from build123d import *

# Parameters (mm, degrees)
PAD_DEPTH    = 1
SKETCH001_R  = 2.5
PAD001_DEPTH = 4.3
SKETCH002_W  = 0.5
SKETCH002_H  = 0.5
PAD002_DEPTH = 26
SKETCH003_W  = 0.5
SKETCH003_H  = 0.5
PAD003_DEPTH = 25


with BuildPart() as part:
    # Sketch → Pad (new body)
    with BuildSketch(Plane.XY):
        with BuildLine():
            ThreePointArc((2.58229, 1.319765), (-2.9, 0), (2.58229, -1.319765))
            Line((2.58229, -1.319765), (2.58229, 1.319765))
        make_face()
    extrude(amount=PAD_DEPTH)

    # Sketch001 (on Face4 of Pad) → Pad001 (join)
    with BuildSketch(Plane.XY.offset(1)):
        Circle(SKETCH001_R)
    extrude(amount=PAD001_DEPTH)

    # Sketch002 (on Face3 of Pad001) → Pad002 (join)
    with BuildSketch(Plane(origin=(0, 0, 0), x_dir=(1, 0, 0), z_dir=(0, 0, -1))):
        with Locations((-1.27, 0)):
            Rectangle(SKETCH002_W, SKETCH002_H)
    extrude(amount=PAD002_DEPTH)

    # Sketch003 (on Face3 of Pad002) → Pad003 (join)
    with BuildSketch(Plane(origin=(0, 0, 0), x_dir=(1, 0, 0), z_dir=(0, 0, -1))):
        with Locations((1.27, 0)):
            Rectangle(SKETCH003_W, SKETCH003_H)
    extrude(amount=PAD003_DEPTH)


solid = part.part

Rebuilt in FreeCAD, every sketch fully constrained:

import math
import FreeCAD as App
import Part
import Sketcher
from FreeCAD import Vector
Q = App.Units.Quantity

doc = App.newDocument("Part")
params = doc.addObject("Spreadsheet::Sheet", "Params")
for row, (alias, value) in enumerate([
    ("sketch1_radius", "2.9 mm"),
    ("pad1_length", "1 mm"),
    ("sketch2_diameter", "5 mm"),
    ("pad2_length", "4.3 mm"),
    ("sketch3_width", "0.5 mm"),
    ("pad3_length", "26 mm"),
    ("sketch4_width", "0.5 mm"),
    ("pad4_length", "25 mm"),
], start=1):
    params.set(f"A{row}", alias)
    params.set(f"B{row}", "=" + value)
    params.setAlias(f"B{row}", alias)

body = doc.addObject("PartDesign::Body", "Body")

# Sketch on XY plane
sketch1 = body.newObject("Sketcher::SketchObject", "Sketch")
sketch1.AttachmentSupport = (doc.getObject("XY_Plane"), [""])
sketch1.MapMode = "FlatFace"
sketch1.addGeometry(Part.ArcOfCircle(Part.Circle(Vector(0, 0, 0), Vector(0, 0, 1), 2.9), math.radians(27.070813), math.radians(332.929187)), False)
sketch1.addGeometry(Part.LineSegment(Vector(2.58229, -1.319765, 0), Vector(2.58229, 1.319765, 0)), False)
sketch1.addConstraint(Sketcher.Constraint("Coincident", 0, 1, 1, 2))
sketch1.addConstraint(Sketcher.Constraint("Coincident", 1, 1, 0, 2))
sketch1.addConstraint(Sketcher.Constraint("Vertical", 1))
sketch1.addConstraint(Sketcher.Constraint("Coincident", 0, 3, -1, 1))
sketch1.addConstraint(Sketcher.Constraint("Radius", 0, Q("2.9 mm")))
sketch1.addConstraint(Sketcher.Constraint("DistanceY", 1, 1, 1, 2, Q("2.63953 mm")))
sketch1.setExpression("Constraints[4]", "Params.sketch1_radius")
pad1 = body.newObject("PartDesign::Pad", "Pad")
pad1.Profile = sketch1
pad1.setExpression("Length", "Params.pad1_length")

# Sketch on XY plane
sketch2 = body.newObject("Sketcher::SketchObject", "Sketch001")
sketch2.AttachmentSupport = (doc.getObject("XY_Plane"), [""])
sketch2.MapMode = "FlatFace"
sketch2.AttachmentOffset = App.Placement(Vector(0, 0, 1), App.Rotation())
sketch2.addGeometry(Part.Circle(Vector(0, 0, 0), Vector(0, 0, 1), 2.5), False)
sketch2.addConstraint(Sketcher.Constraint("Coincident", 0, 3, -1, 1))
sketch2.addConstraint(Sketcher.Constraint("Diameter", 0, Q("5 mm")))
sketch2.setExpression("Constraints[1]", "Params.sketch2_diameter")
pad2 = body.newObject("PartDesign::Pad", "Pad001")
pad2.Profile = sketch2
pad2.setExpression("Length", "Params.pad2_length")

# Sketch on XY plane
sketch3 = body.newObject("Sketcher::SketchObject", "Sketch002")
sketch3.AttachmentSupport = (doc.getObject("XY_Plane"), [""])
sketch3.MapMode = "FlatFace"
sketch3.addGeometry(Part.LineSegment(Vector(-1.52, -0.25, 0), Vector(-1.52, 0.25, 0)), False)
sketch3.addGeometry(Part.LineSegment(Vector(-1.52, 0.25, 0), Vector(-1.02, 0.25, 0)), False)
sketch3.addGeometry(Part.LineSegment(Vector(-1.02, 0.25, 0), Vector(-1.02, -0.25, 0)), False)
sketch3.addGeometry(Part.LineSegment(Vector(-1.02, -0.25, 0), Vector(-1.52, -0.25, 0)), False)
sketch3.addConstraint(Sketcher.Constraint("Coincident", 0, 2, 1, 1))
sketch3.addConstraint(Sketcher.Constraint("Coincident", 1, 2, 2, 1))
sketch3.addConstraint(Sketcher.Constraint("Coincident", 2, 2, 3, 1))
sketch3.addConstraint(Sketcher.Constraint("Coincident", 3, 2, 0, 1))
sketch3.addConstraint(Sketcher.Constraint("Vertical", 0))
sketch3.addConstraint(Sketcher.Constraint("Horizontal", 1))
sketch3.addConstraint(Sketcher.Constraint("Vertical", 2))
sketch3.addConstraint(Sketcher.Constraint("Horizontal", 3))
sketch3.addConstraint(Sketcher.Constraint("Equal", 3, 0))
sketch3.addConstraint(Sketcher.Constraint("DistanceX", 1, 1, 1, 2, Q("0.5 mm")))
sketch3.addConstraint(Sketcher.Constraint("DistanceX", 0, 2, -1, 1, Q("1.52 mm")))
sketch3.addConstraint(Sketcher.Constraint("DistanceY", -1, 1, 0, 2, Q("0.25 mm")))
sketch3.setExpression("Constraints[9]", "Params.sketch3_width")
pad3 = body.newObject("PartDesign::Pad", "Pad002")
pad3.Profile = sketch3
pad3.setExpression("Length", "Params.pad3_length")
pad3.Reversed = True

# Sketch on XY plane
sketch4 = body.newObject("Sketcher::SketchObject", "Sketch003")
sketch4.AttachmentSupport = (doc.getObject("XY_Plane"), [""])
sketch4.MapMode = "FlatFace"
sketch4.addGeometry(Part.LineSegment(Vector(1.02, -0.25, 0), Vector(1.02, 0.25, 0)), False)
sketch4.addGeometry(Part.LineSegment(Vector(1.02, 0.25, 0), Vector(1.52, 0.25, 0)), False)
sketch4.addGeometry(Part.LineSegment(Vector(1.52, 0.25, 0), Vector(1.52, -0.25, 0)), False)
sketch4.addGeometry(Part.LineSegment(Vector(1.52, -0.25, 0), Vector(1.02, -0.25, 0)), False)
sketch4.addConstraint(Sketcher.Constraint("Coincident", 0, 2, 1, 1))
sketch4.addConstraint(Sketcher.Constraint("Coincident", 1, 2, 2, 1))
sketch4.addConstraint(Sketcher.Constraint("Coincident", 2, 2, 3, 1))
sketch4.addConstraint(Sketcher.Constraint("Coincident", 3, 2, 0, 1))
sketch4.addConstraint(Sketcher.Constraint("Vertical", 0))
sketch4.addConstraint(Sketcher.Constraint("Horizontal", 1))
sketch4.addConstraint(Sketcher.Constraint("Vertical", 2))
sketch4.addConstraint(Sketcher.Constraint("Horizontal", 3))
sketch4.addConstraint(Sketcher.Constraint("Equal", 3, 0))
sketch4.addConstraint(Sketcher.Constraint("DistanceX", 1, 1, 1, 2, Q("0.5 mm")))
sketch4.addConstraint(Sketcher.Constraint("DistanceX", -1, 1, 0, 2, Q("1.02 mm")))
sketch4.addConstraint(Sketcher.Constraint("DistanceY", -1, 1, 0, 2, Q("0.25 mm")))
sketch4.setExpression("Constraints[9]", "Params.sketch4_width")
pad4 = body.newObject("PartDesign::Pad", "Pad003")
pad4.Profile = sketch4
pad4.setExpression("Length", "Params.pad4_length")
pad4.Reversed = True

doc.recompute()
